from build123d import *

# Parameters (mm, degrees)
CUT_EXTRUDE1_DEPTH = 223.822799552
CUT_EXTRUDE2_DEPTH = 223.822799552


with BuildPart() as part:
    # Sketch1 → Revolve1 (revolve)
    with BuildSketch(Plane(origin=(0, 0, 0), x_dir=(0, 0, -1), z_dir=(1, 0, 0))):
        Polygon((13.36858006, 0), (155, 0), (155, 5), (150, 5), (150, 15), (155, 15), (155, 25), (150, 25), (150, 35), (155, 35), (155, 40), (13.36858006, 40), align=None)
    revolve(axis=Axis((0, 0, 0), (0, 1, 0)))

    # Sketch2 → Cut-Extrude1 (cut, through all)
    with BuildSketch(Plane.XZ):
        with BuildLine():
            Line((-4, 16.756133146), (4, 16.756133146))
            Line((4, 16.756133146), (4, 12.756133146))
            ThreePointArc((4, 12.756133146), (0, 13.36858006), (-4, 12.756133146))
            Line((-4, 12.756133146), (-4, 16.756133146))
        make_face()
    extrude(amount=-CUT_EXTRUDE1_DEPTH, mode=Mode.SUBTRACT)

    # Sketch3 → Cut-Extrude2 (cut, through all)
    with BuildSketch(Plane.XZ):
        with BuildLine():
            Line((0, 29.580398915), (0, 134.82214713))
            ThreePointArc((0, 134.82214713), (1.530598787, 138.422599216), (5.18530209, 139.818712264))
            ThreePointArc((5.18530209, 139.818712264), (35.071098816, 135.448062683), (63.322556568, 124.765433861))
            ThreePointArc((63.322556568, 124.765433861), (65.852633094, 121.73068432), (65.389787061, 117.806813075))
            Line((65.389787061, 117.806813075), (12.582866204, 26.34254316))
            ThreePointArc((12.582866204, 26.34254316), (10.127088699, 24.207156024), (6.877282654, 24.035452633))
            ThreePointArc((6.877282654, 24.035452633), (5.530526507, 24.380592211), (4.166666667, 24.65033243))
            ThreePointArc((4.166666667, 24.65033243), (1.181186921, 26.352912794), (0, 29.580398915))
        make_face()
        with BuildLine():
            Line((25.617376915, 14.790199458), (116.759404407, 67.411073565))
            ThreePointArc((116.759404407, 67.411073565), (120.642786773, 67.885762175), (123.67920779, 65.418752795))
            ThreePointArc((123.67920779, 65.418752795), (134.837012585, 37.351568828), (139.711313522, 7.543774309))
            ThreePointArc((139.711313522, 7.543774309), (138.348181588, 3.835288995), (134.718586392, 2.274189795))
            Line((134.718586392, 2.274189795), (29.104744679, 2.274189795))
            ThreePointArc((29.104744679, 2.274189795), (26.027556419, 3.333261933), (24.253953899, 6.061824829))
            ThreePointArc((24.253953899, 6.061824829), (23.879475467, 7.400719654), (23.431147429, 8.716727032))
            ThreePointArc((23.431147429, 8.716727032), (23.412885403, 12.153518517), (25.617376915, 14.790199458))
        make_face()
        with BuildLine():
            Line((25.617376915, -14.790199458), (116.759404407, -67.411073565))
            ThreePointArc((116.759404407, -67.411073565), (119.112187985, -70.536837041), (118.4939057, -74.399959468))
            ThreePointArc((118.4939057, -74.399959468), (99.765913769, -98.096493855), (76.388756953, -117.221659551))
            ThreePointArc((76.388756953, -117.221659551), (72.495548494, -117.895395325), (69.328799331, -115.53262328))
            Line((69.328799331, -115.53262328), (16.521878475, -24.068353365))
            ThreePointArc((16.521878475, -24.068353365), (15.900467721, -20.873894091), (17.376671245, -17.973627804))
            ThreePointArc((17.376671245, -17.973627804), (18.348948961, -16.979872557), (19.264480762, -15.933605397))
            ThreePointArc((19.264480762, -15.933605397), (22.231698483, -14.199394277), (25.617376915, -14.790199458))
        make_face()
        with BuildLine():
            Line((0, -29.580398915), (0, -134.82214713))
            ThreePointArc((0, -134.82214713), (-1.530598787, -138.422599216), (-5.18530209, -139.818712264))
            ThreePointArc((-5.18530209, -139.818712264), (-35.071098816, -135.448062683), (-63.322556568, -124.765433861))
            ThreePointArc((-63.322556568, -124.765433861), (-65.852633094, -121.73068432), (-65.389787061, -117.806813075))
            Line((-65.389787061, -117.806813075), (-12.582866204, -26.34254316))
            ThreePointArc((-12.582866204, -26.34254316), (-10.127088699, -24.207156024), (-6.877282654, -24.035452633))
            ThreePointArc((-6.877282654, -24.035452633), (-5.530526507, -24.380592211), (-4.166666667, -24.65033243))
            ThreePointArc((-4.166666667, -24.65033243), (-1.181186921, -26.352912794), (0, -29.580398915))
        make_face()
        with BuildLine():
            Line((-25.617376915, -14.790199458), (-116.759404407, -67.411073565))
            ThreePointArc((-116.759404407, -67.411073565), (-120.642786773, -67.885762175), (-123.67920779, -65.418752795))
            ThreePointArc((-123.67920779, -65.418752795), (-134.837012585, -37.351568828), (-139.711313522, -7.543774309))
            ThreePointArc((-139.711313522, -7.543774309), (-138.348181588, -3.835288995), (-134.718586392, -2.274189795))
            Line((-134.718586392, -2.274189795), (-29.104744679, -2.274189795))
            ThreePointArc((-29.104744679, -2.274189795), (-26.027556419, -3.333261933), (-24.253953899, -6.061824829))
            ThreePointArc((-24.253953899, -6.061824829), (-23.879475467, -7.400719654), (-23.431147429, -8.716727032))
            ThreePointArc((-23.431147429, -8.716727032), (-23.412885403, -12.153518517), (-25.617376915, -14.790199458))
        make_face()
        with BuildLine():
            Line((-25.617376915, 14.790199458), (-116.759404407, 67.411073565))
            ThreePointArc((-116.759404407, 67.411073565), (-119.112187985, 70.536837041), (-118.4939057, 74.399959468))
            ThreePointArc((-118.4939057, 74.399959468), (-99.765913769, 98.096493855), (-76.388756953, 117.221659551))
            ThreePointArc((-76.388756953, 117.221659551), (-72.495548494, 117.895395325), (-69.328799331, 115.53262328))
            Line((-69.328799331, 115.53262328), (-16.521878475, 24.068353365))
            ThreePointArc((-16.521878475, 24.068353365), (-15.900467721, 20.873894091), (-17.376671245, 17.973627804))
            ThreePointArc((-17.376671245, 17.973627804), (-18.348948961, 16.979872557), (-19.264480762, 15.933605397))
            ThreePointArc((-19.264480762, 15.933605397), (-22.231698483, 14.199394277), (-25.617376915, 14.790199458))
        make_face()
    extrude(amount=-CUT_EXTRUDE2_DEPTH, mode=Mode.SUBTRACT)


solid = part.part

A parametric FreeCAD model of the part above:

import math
import FreeCAD as App
import Part
import Sketcher

V = App.Vector
Q = App.Units.Quantity


def add_polygon(sketch, points):
    """Adds a closed chain of lines whose ends are joined by coincident constraints."""
    first, n = sketch.GeometryCount, len(points)
    for a, b in zip(points, points[1:] + points[:1]):
        sketch.addGeometry(Part.LineSegment(App.Vector(*a, 0), App.Vector(*b, 0)), False)
    for i in range(n):
        sketch.addConstraint(Sketcher.Constraint("Coincident", first + i, 2, first + (i + 1) % n, 1))

doc = App.newDocument("Part")
params = doc.addObject("Spreadsheet::Sheet", "Params")
for row, (alias, value) in enumerate([
    ("sketch1_width", "5 mm"),
    ("sketch1_width2", "10 mm"),
    ("revolution_angle", "360 deg"),
    ("sketch2_width", "8 mm"),
    ("sketch2_height", "4 mm"),
    ("sketch3_radius", "5 mm"),
    ("sketch3_radius2", "25 mm"),
], start=1):
    params.set(f"A{row}", alias)
    params.set(f"B{row}", "=" + value)
    params.setAlias(f"B{row}", alias)

body = doc.addObject("PartDesign::Body", "Body")

# Sketch on YZ plane
sketch1 = body.newObject("Sketcher::SketchObject", "Sketch")
sketch1.AttachmentSupport = (doc.getObject("YZ_Plane"), [""])
sketch1.MapMode = "FlatFace"
add_polygon(sketch1, [(0, -13), (0, -155), (5, -155), (5, -150), (15, -150), (15, -155), (25, -155), (25, -150), (35, -150), (35, -155), (40, -155), (40, -13)])  # lines 0-11
sketch1.addConstraint(Sketcher.Constraint("Vertical", 0))
sketch1.addConstraint(Sketcher.Constraint("Horizontal", 1))
sketch1.addConstraint(Sketcher.Constraint("Vertical", 2))
sketch1.addConstraint(Sketcher.Constraint("Horizontal", 3))
sketch1.addConstraint(Sketcher.Constraint("Vertical", 4))
sketch1.addConstraint(Sketcher.Constraint("Horizontal", 5))
sketch1.addConstraint(Sketcher.Constraint("Vertical", 6))
sketch1.addConstraint(Sketcher.Constraint("Horizontal", 7))
sketch1.addConstraint(Sketcher.Constraint("Vertical", 8))
sketch1.addConstraint(Sketcher.Constraint("Horizontal", 9))
sketch1.addConstraint(Sketcher.Constraint("Vertical", 10))
sketch1.addConstraint(Sketcher.Constraint("Horizontal", 11))
sketch1.addConstraint(Sketcher.Constraint("PointOnObject", 0, 2, -2))
sketch1.addConstraint(Sketcher.Constraint("Horizontal", 1, 2, 4, 2))
sketch1.addConstraint(Sketcher.Constraint("Horizontal", 3, 2, 6, 2))
sketch1.addConstraint(Sketcher.Constraint("Horizontal", 5, 2, 8, 2))
sketch1.addConstraint(Sketcher.Constraint("Equal", 3, 5))
sketch1.addConstraint(Sketcher.Constraint("Equal", 5, 7))
sketch1.addConstraint(Sketcher.Constraint("Equal", 1, 9))
sketch1.addConstraint(Sketcher.Constraint("Equal", 9, 2))
sketch1.addConstraint(Sketcher.Constraint("DistanceX", 1, 1, 1, 2, 5.0))
sketch1.addConstraint(Sketcher.Constraint("DistanceX", 3, 1, 3, 2, 10.0))
sketch1.addConstraint(Sketcher.Constraint("DistanceY", 0, 2, -1, 1, 155.0))
sketch1.addConstraint(Sketcher.Constraint("DistanceY", 0, 2, 0, 1, 141.63142))
sketch1.setExpression("Constraints[32]", "Params.sketch1_width")
sketch1.setExpression("Constraints[33]", "Params.sketch1_width2")
revolution = body.newObject("PartDesign::Revolution", "Revolution")
revolution.Profile = sketch1
revolution.ReferenceAxis = (sketch1, ["H_Axis"])
revolution.setExpression("Angle", "Params.revolution_angle")

# Sketch on XZ plane
sketch2 = body.newObject("Sketcher::SketchObject", "Sketch001")
sketch2.AttachmentSupport = (doc.getObject("XZ_Plane"), [""])
sketch2.MapMode = "FlatFace"
sketch2.addGeometry(Part.LineSegment(V(4, 16.8, 0), V(-4, 16.8, 0)), False)
sketch2.addGeometry(Part.LineSegment(V(-4, 16.8, 0), V(-4, 12.8, 0)), False)
sketch2.addGeometry(Part.ArcOfCircle(Part.Circle(V(0, 0, 0), V(0, 0, 1), 13.4), math.radians(73), math.radians(107)), False)
sketch2.addGeometry(Part.LineSegment(V(4, 12.8, 0), V(4, 16.8, 0)), False)
sketch2.addConstraint(Sketcher.Constraint("Coincident", 0, 2, 1, 1))
sketch2.addConstraint(Sketcher.Constraint("Coincident", 1, 2, 2, 2))
sketch2.addConstraint(Sketcher.Constraint("Coincident", 2, 1, 3, 1))
sketch2.addConstraint(Sketcher.Constraint("Coincident", 3, 2, 0, 1))
sketch2.addConstraint(Sketcher.Constraint("Horizontal", 0))
sketch2.addConstraint(Sketcher.Constraint("Vertical", 1))
sketch2.addConstraint(Sketcher.Constraint("Vertical", 3))
sketch2.addConstraint(Sketcher.Constraint("Coincident", 2, 3, -1, 1))
sketch2.addConstraint(Sketcher.Constraint("Horizontal", 1, 2, 2, 1))
sketch2.addConstraint(Sketcher.Constraint("DistanceX", 0, 2, 0, 1, 8.0))
sketch2.addConstraint(Sketcher.Constraint("DistanceY", 1, 2, 1, 1, 4.0))
sketch2.addConstraint(Sketcher.Constraint("Radius", 2, 13.36858))
sketch2.setExpression("Constraints[9]", "Params.sketch2_width")
sketch2.setExpression("Constraints[10]", "Params.sketch2_height")
pocket1 = body.newObject("PartDesign::Pocket", "Pocket")
pocket1.Profile = sketch2
pocket1.Type = "ThroughAll"

# Sketch on XZ plane
sketch3 = body.newObject("Sketcher::SketchObject", "Sketch002")
sketch3.AttachmentSupport = (doc.getObject("XZ_Plane"), [""])
sketch3.MapMode = "FlatFace"
sketch3.addGeometry(Part.LineSegment(V(0, 134.8, 0), V(0, 29.6, 0)), False)
sketch3.addGeometry(Part.ArcOfCircle(Part.Circle(V(5, 29.6, 0), V(0, 0, 1), 5), math.radians(-180), math.radians(-100)), False)
sketch3.addGeometry(Part.ArcOfCircle(Part.Circle(V(0, 0, 0), V(0, 0, 1), 25), math.radians(74.03), math.radians(80.41)), False)
sketch3.addGeometry(Part.ArcOfCircle(Part.Circle(V(8.3, 28.8, 0), V(0, 0, 1), 5), math.radians(-106), math.radians(-30)), False)
sketch3.addGeometry(Part.LineSegment(V(12.6, 26.3, 0), V(65.4, 117.8, 0)), False)
sketch3.addGeometry(Part.ArcOfCircle(Part.Circle(V(61.1, 120.3, 0), V(0, 0, 1), 5), math.radians(-30), math.radians(63)), False)
sketch3.addGeometry(Part.ArcOfCircle(Part.Circle(V(0, 0, 0), V(0, 0, 1), 139.9), math.radians(63), math.radians(88)), False)
sketch3.addGeometry(Part.ArcOfCircle(Part.Circle(V(5, 134.8, 0), V(0, 0, 1), 5), math.radians(88), math.radians(180)), False)
sketch3.addGeometry(Part.LineSegment(V(116.8, 67.4, 0), V(25.6, 14.8, 0)), False)
sketch3.addGeometry(Part.ArcOfCircle(Part.Circle(V(28.1, 10.5, 0), V(0, 0, 1), 5), math.radians(120), math.radians(200)), False)
sketch3.addGeometry(Part.ArcOfCircle(Part.Circle(V(0, 0, 0), V(0, 0, 1), 25), math.radians(14.03), math.radians(20.41)), False)
sketch3.addGeometry(Part.ArcOfCircle(Part.Circle(V(29.1, 7.3, 0), V(0, 0, 1), 5), math.radians(-166), math.radians(-90)), False)
sketch3.addGeometry(Part.LineSegment(V(29.1, 2.3, 0), V(134.7, 2.3, 0)), False)
sketch3.addGeometry(Part.ArcOfCircle(Part.Circle(V(134.7, 7.3, 0), V(0, 0, 1), 5), math.radians(-90), math.radians(3)), False)
sketch3.addGeometry(Part.ArcOfCircle(Part.Circle(V(0, 0, 0), V(0, 0, 1), 139.9), math.radians(3), math.radians(28)), False)
sketch3.addGeometry(Part.ArcOfCircle(Part.Circle(V(119.3, 63.1, 0), V(0, 0, 1), 5), math.radians(28), math.radians(120)), False)
sketch3.addGeometry(Part.LineSegment(V(116.8, -67.4, 0), V(25.6, -14.8, 0)), False)
sketch3.addGeometry(Part.ArcOfCircle(Part.Circle(V(23.1, -19.1, 0), V(0, 0, 1), 5), math.radians(60), math.radians(140)), False)
sketch3.addGeometry(Part.ArcOfCircle(Part.Circle(V(0, 0, 0), V(0, 0, 1), 25), math.radians(-45.97), math.radians(-39.59)), False)
sketch3.addGeometry(Part.ArcOfCircle(Part.Circle(V(20.9, -21.6, 0), V(0, 0, 1), 5), math.radians(134), math.radians(210)), False)
sketch3.addGeometry(Part.LineSegment(V(16.5, -24.1, 0), V(69.3, -115.5, 0)), False)
sketch3.addGeometry(Part.ArcOfCircle(Part.Circle(V(73.7, -113, 0), V(0, 0, 1), 5), math.radians(-150), math.radians(-57)), False)
sketch3.addGeometry(Part.ArcOfCircle(Part.Circle(V(0, 0, 0), V(0, 0, 1), 139.9), math.radians(-57), math.radians(-32)), False)
sketch3.addGeometry(Part.ArcOfCircle(Part.Circle(V(114.3, -71.7, 0), V(0, 0, 1), 5), math.radians(-32), math.radians(60)), False)
sketch3.addGeometry(Part.LineSegment(V(0, -134.8, 0), V(0, -29.6, 0)), False)
sketch3.addGeometry(Part.ArcOfCircle(Part.Circle(V(-5, -29.6, 0), V(0, 0, 1), 5), math.radians(0), math.radians(80)), False)
sketch3.addGeometry(Part.ArcOfCircle(Part.Circle(V(0, 0, 0), V(0, 0, 1), 25), math.radians(-105.97), math.radians(-99.59)), False)
sketch3.addGeometry(Part.ArcOfCircle(Part.Circle(V(-8.3, -28.8, 0), V(0, 0, 1), 5), math.radians(74), math.radians(150)), False)
sketch3.addGeometry(Part.LineSegment(V(-12.6, -26.3, 0), V(-65.4, -117.8, 0)), False)
sketch3.addGeometry(Part.ArcOfCircle(Part.Circle(V(-61.1, -120.3, 0), V(0, 0, 1), 5), math.radians(150), math.radians(243)), False)
sketch3.addGeometry(Part.ArcOfCircle(Part.Circle(V(0, 0, 0), V(0, 0, 1), 139.9), math.radians(-117), math.radians(-92)), False)
sketch3.addGeometry(Part.ArcOfCircle(Part.Circle(V(-5, -134.8, 0), V(0, 0, 1), 5), math.radians(-92), math.radians(0)), False)
sketch3.addGeometry(Part.LineSegment(V(-116.8, -67.4, 0), V(-25.6, -14.8, 0)), False)
sketch3.addGeometry(Part.ArcOfCircle(Part.Circle(V(-28.1, -10.5, 0), V(0, 0, 1), 5), math.radians(-60), math.radians(20)), False)
sketch3.addGeometry(Part.ArcOfCircle(Part.Circle(V(0, 0, 0), V(0, 0, 1), 25), math.radians(-165.97), math.radians(-159.59)), False)
sketch3.addGeometry(Part.ArcOfCircle(Part.Circle(V(-29.1, -7.3, 0), V(0, 0, 1), 5), math.radians(14), math.radians(90)), False)
sketch3.addGeometry(Part.LineSegment(V(-29.1, -2.3, 0), V(-134.7, -2.3, 0)), False)
sketch3.addGeometry(Part.ArcOfCircle(Part.Circle(V(-134.7, -7.3, 0), V(0, 0, 1), 5), math.radians(90), math.radians(183)), False)
sketch3.addGeometry(Part.ArcOfCircle(Part.Circle(V(0, 0, 0), V(0, 0, 1), 139.9), math.radians(-177), math.radians(-152)), False)
sketch3.addGeometry(Part.ArcOfCircle(Part.Circle(V(-119.3, -63.1, 0), V(0, 0, 1), 5), math.radians(-152), math.radians(-60)), False)
sketch3.addGeometry(Part.LineSegment(V(-116.8, 67.4, 0), V(-25.6, 14.8, 0)), False)
sketch3.addGeometry(Part.ArcOfCircle(Part.Circle(V(-23.1, 19.1, 0), V(0, 0, 1), 5), math.radians(-120), math.radians(-40)), False)
sketch3.addGeometry(Part.ArcOfCircle(Part.Circle(V(0, 0, 0), V(0, 0, 1), 25), math.radians(134.03), math.radians(140.41)), False)
sketch3.addGeometry(Part.ArcOfCircle(Part.Circle(V(-20.9, 21.6, 0), V(0, 0, 1), 5), math.radians(-46), math.radians(30)), False)
sketch3.addGeometry(Part.LineSegment(V(-16.5, 24.1, 0), V(-69.3, 115.5, 0)), False)
sketch3.addGeometry(Part.ArcOfCircle(Part.Circle(V(-73.7, 113, 0), V(0, 0, 1), 5), math.radians(30), math.radians(123)), False)
sketch3.addGeometry(Part.ArcOfCircle(Part.Circle(V(0, 0, 0), V(0, 0, 1), 139.9), math.radians(123), math.radians(148)), False)
sketch3.addGeometry(Part.ArcOfCircle(Part.Circle(V(-114.3, 71.7, 0), V(0, 0, 1), 5), math.radians(148), math.radians(240)), False)
sketch3.addConstraint(Sketcher.Constraint("Tangent", 0, 2, 1, 1))
sketch3.addConstraint(Sketcher.Constraint("Tangent", 1, 2, 2, 2))
sketch3.addConstraint(Sketcher.Constraint("Tangent", 2, 1, 3, 1))
sketch3.addConstraint(Sketcher.Constraint("Tangent", 3, 2, 4, 1))
sketch3.addConstraint(Sketcher.Constraint("Tangent", 4, 2, 5, 1))
sketch3.addConstraint(Sketcher.Constraint("Tangent", 5, 2, 6, 1))
sketch3.addConstraint(Sketcher.Constraint("Tangent", 6, 2, 7, 1))
sketch3.addConstraint(Sketcher.Constraint("Tangent", 7, 2, 0, 1))
sketch3.addConstraint(Sketcher.Constraint("Tangent", 8, 2, 9, 1))
sketch3.addConstraint(Sketcher.Constraint("Tangent", 9, 2, 10, 2))
sketch3.addConstraint(Sketcher.Constraint("Tangent", 10, 1, 11, 1))
sketch3.addConstraint(Sketcher.Constraint("Tangent", 11, 2, 12, 1))
sketch3.addConstraint(Sketcher.Constraint("Tangent", 12, 2, 13, 1))
sketch3.addConstraint(Sketcher.Constraint("Tangent", 13, 2, 14, 1))
sketch3.addConstraint(Sketcher.Constraint("Tangent", 14, 2, 15, 1))
sketch3.addConstraint(Sketcher.Constraint("Tangent", 15, 2, 8, 1))
sketch3.addConstraint(Sketcher.Constraint("Tangent", 16, 2, 17, 1))
sketch3.addConstraint(Sketcher.Constraint("Tangent", 17, 2, 18, 2))
sketch3.addConstraint(Sketcher.Constraint("Tangent", 18, 1, 19, 1))
sketch3.addConstraint(Sketcher.Constraint("Tangent", 19, 2, 20, 1))
sketch3.addConstraint(Sketcher.Constraint("Tangent", 20, 2, 21, 1))
sketch3.addConstraint(Sketcher.Constraint("Tangent", 21, 2, 22, 1))
sketch3.addConstraint(Sketcher.Constraint("Tangent", 22, 2, 23, 1))
sketch3.addConstraint(Sketcher.Constraint("Tangent", 23, 2, 16, 1))
sketch3.addConstraint(Sketcher.Constraint("Tangent", 24, 2, 25, 1))
sketch3.addConstraint(Sketcher.Constraint("Tangent", 25, 2, 26, 2))
sketch3.addConstraint(Sketcher.Constraint("Tangent", 26, 1, 27, 1))
sketch3.addConstraint(Sketcher.Constraint("Tangent", 27, 2, 28, 1))
sketch3.addConstraint(Sketcher.Constraint("Tangent", 28, 2, 29, 1))
sketch3.addConstraint(Sketcher.Constraint("Tangent", 29, 2, 30, 1))
sketch3.addConstraint(Sketcher.Constraint("Tangent", 30, 2, 31, 1))
sketch3.addConstraint(Sketcher.Constraint("Tangent", 31, 2, 24, 1))
sketch3.addConstraint(Sketcher.Constraint("Tangent", 32, 2, 33, 1))
sketch3.addConstraint(Sketcher.Constraint("Tangent", 33, 2, 34, 2))
sketch3.addConstraint(Sketcher.Constraint("Tangent", 34, 1, 35, 1))
sketch3.addConstraint(Sketcher.Constraint("Tangent", 35, 2, 36, 1))
sketch3.addConstraint(Sketcher.Constraint("Tangent", 36, 2, 37, 1))
sketch3.addConstraint(Sketcher.Constraint("Tangent", 37, 2, 38, 1))
sketch3.addConstraint(Sketcher.Constraint("Tangent", 38, 2, 39, 1))
sketch3.addConstraint(Sketcher.Constraint("Tangent", 39, 2, 32, 1))
sketch3.addConstraint(Sketcher.Constraint("Tangent", 40, 2, 41, 1))
sketch3.addConstraint(Sketcher.Constraint("Tangent", 41, 2, 42, 2))
sketch3.addConstraint(Sketcher.Constraint("Tangent", 42, 1, 43, 1))
sketch3.addConstraint(Sketcher.Constraint("Tangent", 43, 2, 44, 1))
sketch3.addConstraint(Sketcher.Constraint("Tangent", 44, 2, 45, 1))
sketch3.addConstraint(Sketcher.Constraint("Tangent", 45, 2, 46, 1))
sketch3.addConstraint(Sketcher.Constraint("Tangent", 46, 2, 47, 1))
sketch3.addConstraint(Sketcher.Constraint("Tangent", 47, 2, 40, 1))
sketch3.addConstraint(Sketcher.Constraint("Vertical", 0))
sketch3.addConstraint(Sketcher.Constraint("Horizontal", 12))
sketch3.addConstraint(Sketcher.Constraint("Vertical", 24))
sketch3.addConstraint(Sketcher.Constraint("Horizontal", 36))
sketch3.addConstraint(Sketcher.Constraint("Coincident", 2, 3, -1, 1))
sketch3.addConstraint(Sketcher.Constraint("Coincident", 6, 3, -1, 1))
sketch3.addConstraint(Sketcher.Constraint("Coincident", 10, 3, -1, 1))
sketch3.addConstraint(Sketcher.Constraint("Coincident", 14, 3, -1, 1))
sketch3.addConstraint(Sketcher.Constraint("Coincident", 18, 3, -1, 1))
sketch3.addConstraint(Sketcher.Constraint("Coincident", 22, 3, -1, 1))
sketch3.addConstraint(Sketcher.Constraint("Coincident", 26, 3, -1, 1))
sketch3.addConstraint(Sketcher.Constraint("Coincident", 30, 3, -1, 1))
sketch3.addConstraint(Sketcher.Constraint("Coincident", 34, 3, -1, 1))
sketch3.addConstraint(Sketcher.Constraint("Coincident", 38, 3, -1, 1))
sketch3.addConstraint(Sketcher.Constraint("Coincident", 42, 3, -1, 1))
sketch3.addConstraint(Sketcher.Constraint("Coincident", 46, 3, -1, 1))
sketch3.addConstraint(Sketcher.Constraint("Equal", 1, 3))
sketch3.addConstraint(Sketcher.Constraint("Equal", 3, 5))
sketch3.addConstraint(Sketcher.Constraint("Equal", 5, 7))
sketch3.addConstraint(Sketcher.Constraint("Equal", 7, 9))
sketch3.addConstraint(Sketcher.Constraint("Equal", 2, 10))
sketch3.addConstraint(Sketcher.Constraint("Equal", 9, 11))
sketch3.addConstraint(Sketcher.Constraint("Equal", 11, 13))
sketch3.addConstraint(Sketcher.Constraint("Equal", 6, 14))
sketch3.addConstraint(Sketcher.Constraint("Equal", 13, 15))
sketch3.addConstraint(Sketcher.Constraint("Equal", 15, 17))
sketch3.addConstraint(Sketcher.Constraint("Equal", 10, 18))
sketch3.addConstraint(Sketcher.Constraint("Equal", 17, 19))
sketch3.addConstraint(Sketcher.Constraint("Equal", 19, 21))
sketch3.addConstraint(Sketcher.Constraint("Equal", 14, 22))
sketch3.addConstraint(Sketcher.Constraint("Equal", 21, 23))
sketch3.addConstraint(Sketcher.Constraint("Equal", 23, 25))
sketch3.addConstraint(Sketcher.Constraint("Equal", 18, 26))
sketch3.addConstraint(Sketcher.Constraint("Equal", 25, 27))
sketch3.addConstraint(Sketcher.Constraint("Equal", 27, 29))
sketch3.addConstraint(Sketcher.Constraint("Equal", 22, 30))
sketch3.addConstraint(Sketcher.Constraint("Equal", 29, 31))
sketch3.addConstraint(Sketcher.Constraint("Equal", 31, 33))
sketch3.addConstraint(Sketcher.Constraint("Equal", 26, 34))
sketch3.addConstraint(Sketcher.Constraint("Equal", 33, 35))
sketch3.addConstraint(Sketcher.Constraint("Equal", 35, 37))
sketch3.addConstraint(Sketcher.Constraint("Equal", 30, 38))
sketch3.addConstraint(Sketcher.Constraint("Equal", 37, 39))
sketch3.addConstraint(Sketcher.Constraint("Equal", 39, 41))
sketch3.addConstraint(Sketcher.Constraint("Equal", 34, 42))
sketch3.addConstraint(Sketcher.Constraint("Equal", 41, 43))
sketch3.addConstraint(Sketcher.Constraint("Equal", 43, 45))
sketch3.addConstraint(Sketcher.Constraint("Equal", 38, 46))
sketch3.addConstraint(Sketcher.Constraint("Equal", 45, 47))
sketch3.addConstraint(Sketcher.Constraint("Symmetric", 3, 2, 27, 2, -1, 1))
sketch3.addConstraint(Sketcher.Constraint("Symmetric", 8, 2, 32, 2, -1, 1))
sketch3.addConstraint(Sketcher.Constraint("Symmetric", 16, 2, 40, 2, -1, 1))
sketch3.addConstraint(Sketcher.Constraint("Symmetric", 19, 2, 43, 2, -1, 1))
sketch3.addConstraint(Sketcher.Constraint("Symmetric", 16, 2, 32, 2, -2))
sketch3.addConstraint(Sketcher.Constraint("Symmetric", 0, 2, 24, 2, -1))
sketch3.addConstraint(Sketcher.Constraint("Perpendicular", 4, 16))
sketch3.addConstraint(Sketcher.Constraint("Perpendicular", 8, 20))
sketch3.addConstraint(Sketcher.Constraint("Horizontal", 23, 2, 39, 2))
sketch3.addConstraint(Sketcher.Constraint("Equal", 12, 36))
sketch3.addConstraint(Sketcher.Constraint("Equal", 4, 20))
sketch3.addConstraint(Sketcher.Constraint("Radius", 1, 5.0))
sketch3.addConstraint(Sketcher.Constraint("Radius", 2, 25.0))
sketch3.addConstraint(Sketcher.Constraint("Angle", 4, Q("60 deg")))
sketch3.addConstraint(Sketcher.Constraint("Radius", 6, 139.91483))
sketch3.addConstraint(Sketcher.Constraint("DistanceX", 12, 1, 12, 2, 105.613842))
sketch3.addConstraint(Sketcher.Constraint("DistanceX", -1, 1, 20, 2, 69.328799))
sketch3.setExpression("Constraints[108]", "Params.sketch3_radius")
sketch3.setExpression("Constraints[109]", "Params.sketch3_radius2")
pocket2 = body.newObject("PartDesign::Pocket", "Pocket001")
pocket2.Profile = sketch3
pocket2.Type = "ThroughAll"

doc.recompute()
